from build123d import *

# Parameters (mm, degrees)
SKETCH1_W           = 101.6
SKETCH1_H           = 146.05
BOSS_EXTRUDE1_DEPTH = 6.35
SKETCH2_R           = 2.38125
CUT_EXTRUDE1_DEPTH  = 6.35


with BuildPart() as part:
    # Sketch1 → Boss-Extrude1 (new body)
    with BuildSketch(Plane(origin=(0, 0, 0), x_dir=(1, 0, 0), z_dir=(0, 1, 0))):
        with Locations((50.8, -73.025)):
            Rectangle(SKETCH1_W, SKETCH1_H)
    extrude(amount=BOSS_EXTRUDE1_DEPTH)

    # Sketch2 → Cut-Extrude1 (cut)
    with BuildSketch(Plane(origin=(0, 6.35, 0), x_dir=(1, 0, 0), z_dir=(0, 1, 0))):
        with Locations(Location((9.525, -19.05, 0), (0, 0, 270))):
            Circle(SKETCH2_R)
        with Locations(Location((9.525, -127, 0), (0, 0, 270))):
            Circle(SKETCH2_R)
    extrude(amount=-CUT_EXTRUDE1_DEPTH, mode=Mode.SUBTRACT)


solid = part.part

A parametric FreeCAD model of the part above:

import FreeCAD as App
import Part
import Sketcher
from FreeCAD import Vector
Q = App.Units.Quantity


def add_polygon(sketch, points):
    """Adds a closed chain of lines whose ends are joined by coincident constraints."""
    first, n = sketch.GeometryCount, len(points)
    for a, b in zip(points, points[1:] + points[:1]):
        sketch.addGeometry(Part.LineSegment(App.Vector(*a, 0), App.Vector(*b, 0)), False)
    for i in range(n):
        sketch.addConstraint(Sketcher.Constraint("Coincident", first + i, 2, first + (i + 1) % n, 1))

doc = App.newDocument("Part")
params = doc.addObject("Spreadsheet::Sheet", "Params")
for row, (alias, value) in enumerate([
    ("sketch1_width", "4 in"),
    ("sketch1_height", "5.75 in"),
    ("pad1_length", "0.25 in"),
    ("sketch2_diameter", "0.1875 in"),
    ("pocket1_length", "0.25 in"),
], start=1):
    params.set(f"A{row}", alias)
    params.set(f"B{row}", "=" + value)
    params.setAlias(f"B{row}", alias)

body = doc.addObject("PartDesign::Body", "Body")

sketch1 = doc.addObject("Sketcher::SketchObject", "Sketch")
body.addObject(sketch1)
sketch1.AttachmentSupport = (doc.XZ_Plane, [""])
sketch1.MapMode = "FlatFace"
add_polygon(sketch1, [(0, 0), (0, 146), (102, 146), (102, 0)])
sketch1.addConstraint(Sketcher.Constraint("Vertical", 0))
sketch1.addConstraint(Sketcher.Constraint("Horizontal", 1))
sketch1.addConstraint(Sketcher.Constraint("Vertical", 2))
sketch1.addConstraint(Sketcher.Constraint("Horizontal", 3))
sketch1.addConstraint(Sketcher.Constraint("Coincident", 3, 2, -1, 1))
sketch1.addConstraint(Sketcher.Constraint("DistanceX", 1, 1, 1, 2, Q("4 in")))
sketch1.addConstraint(Sketcher.Constraint("DistanceY", 0, 1, 0, 2, Q("5.75 in")))
sketch1.setExpression("Constraints[9]", "Params.sketch1_width")
sketch1.setExpression("Constraints[10]", "Params.sketch1_height")
pad1 = doc.addObject("PartDesign::Pad", "Pad")
body.addObject(pad1)
pad1.Profile = sketch1
pad1.setExpression("Length", "Params.pad1_length")
pad1.Reversed = True

sketch2 = doc.addObject("Sketcher::SketchObject", "Sketch001")
body.addObject(sketch2)
sketch2.AttachmentSupport = (doc.XZ_Plane, [""])
sketch2.MapMode = "FlatFace"
sketch2.AttachmentOffset = App.Placement(Vector(0, 0, -0.25 * 25.4), App.Rotation())
sketch2.addGeometry(Part.Circle(Vector(9.5, 19.1, 0), Vector(0, 0, 1), 2.4), False)
sketch2.addGeometry(Part.Circle(Vector(9.5, 127, 0), Vector(0, 0, 1), 2.4), False)
sketch2.addConstraint(Sketcher.Constraint("Equal", 0, 1))
sketch2.addConstraint(Sketcher.Constraint("Vertical", 0, 3, 1, 3))
sketch2.addConstraint(Sketcher.Constraint("Diameter", 0, Q("0.1875 in")))
sketch2.addConstraint(Sketcher.Constraint("DistanceY", -1, 1, 1, 3, Q("5 in")))
sketch2.addConstraint(Sketcher.Constraint("DistanceY", -1, 1, 0, 3, Q("0.75 in")))
sketch2.addConstraint(Sketcher.Constraint("DistanceX", -1, 1, 0, 3, Q("0.375 in")))
sketch2.setExpression("Constraints[2]", "Params.sketch2_diameter")
pocket1 = doc.addObject("PartDesign::Pocket", "Pocket")
body.addObject(pocket1)
pocket1.Profile = sketch2
pocket1.setExpression("Length", "Params.pocket1_length")
pocket1.Reversed = True

doc.recompute()
